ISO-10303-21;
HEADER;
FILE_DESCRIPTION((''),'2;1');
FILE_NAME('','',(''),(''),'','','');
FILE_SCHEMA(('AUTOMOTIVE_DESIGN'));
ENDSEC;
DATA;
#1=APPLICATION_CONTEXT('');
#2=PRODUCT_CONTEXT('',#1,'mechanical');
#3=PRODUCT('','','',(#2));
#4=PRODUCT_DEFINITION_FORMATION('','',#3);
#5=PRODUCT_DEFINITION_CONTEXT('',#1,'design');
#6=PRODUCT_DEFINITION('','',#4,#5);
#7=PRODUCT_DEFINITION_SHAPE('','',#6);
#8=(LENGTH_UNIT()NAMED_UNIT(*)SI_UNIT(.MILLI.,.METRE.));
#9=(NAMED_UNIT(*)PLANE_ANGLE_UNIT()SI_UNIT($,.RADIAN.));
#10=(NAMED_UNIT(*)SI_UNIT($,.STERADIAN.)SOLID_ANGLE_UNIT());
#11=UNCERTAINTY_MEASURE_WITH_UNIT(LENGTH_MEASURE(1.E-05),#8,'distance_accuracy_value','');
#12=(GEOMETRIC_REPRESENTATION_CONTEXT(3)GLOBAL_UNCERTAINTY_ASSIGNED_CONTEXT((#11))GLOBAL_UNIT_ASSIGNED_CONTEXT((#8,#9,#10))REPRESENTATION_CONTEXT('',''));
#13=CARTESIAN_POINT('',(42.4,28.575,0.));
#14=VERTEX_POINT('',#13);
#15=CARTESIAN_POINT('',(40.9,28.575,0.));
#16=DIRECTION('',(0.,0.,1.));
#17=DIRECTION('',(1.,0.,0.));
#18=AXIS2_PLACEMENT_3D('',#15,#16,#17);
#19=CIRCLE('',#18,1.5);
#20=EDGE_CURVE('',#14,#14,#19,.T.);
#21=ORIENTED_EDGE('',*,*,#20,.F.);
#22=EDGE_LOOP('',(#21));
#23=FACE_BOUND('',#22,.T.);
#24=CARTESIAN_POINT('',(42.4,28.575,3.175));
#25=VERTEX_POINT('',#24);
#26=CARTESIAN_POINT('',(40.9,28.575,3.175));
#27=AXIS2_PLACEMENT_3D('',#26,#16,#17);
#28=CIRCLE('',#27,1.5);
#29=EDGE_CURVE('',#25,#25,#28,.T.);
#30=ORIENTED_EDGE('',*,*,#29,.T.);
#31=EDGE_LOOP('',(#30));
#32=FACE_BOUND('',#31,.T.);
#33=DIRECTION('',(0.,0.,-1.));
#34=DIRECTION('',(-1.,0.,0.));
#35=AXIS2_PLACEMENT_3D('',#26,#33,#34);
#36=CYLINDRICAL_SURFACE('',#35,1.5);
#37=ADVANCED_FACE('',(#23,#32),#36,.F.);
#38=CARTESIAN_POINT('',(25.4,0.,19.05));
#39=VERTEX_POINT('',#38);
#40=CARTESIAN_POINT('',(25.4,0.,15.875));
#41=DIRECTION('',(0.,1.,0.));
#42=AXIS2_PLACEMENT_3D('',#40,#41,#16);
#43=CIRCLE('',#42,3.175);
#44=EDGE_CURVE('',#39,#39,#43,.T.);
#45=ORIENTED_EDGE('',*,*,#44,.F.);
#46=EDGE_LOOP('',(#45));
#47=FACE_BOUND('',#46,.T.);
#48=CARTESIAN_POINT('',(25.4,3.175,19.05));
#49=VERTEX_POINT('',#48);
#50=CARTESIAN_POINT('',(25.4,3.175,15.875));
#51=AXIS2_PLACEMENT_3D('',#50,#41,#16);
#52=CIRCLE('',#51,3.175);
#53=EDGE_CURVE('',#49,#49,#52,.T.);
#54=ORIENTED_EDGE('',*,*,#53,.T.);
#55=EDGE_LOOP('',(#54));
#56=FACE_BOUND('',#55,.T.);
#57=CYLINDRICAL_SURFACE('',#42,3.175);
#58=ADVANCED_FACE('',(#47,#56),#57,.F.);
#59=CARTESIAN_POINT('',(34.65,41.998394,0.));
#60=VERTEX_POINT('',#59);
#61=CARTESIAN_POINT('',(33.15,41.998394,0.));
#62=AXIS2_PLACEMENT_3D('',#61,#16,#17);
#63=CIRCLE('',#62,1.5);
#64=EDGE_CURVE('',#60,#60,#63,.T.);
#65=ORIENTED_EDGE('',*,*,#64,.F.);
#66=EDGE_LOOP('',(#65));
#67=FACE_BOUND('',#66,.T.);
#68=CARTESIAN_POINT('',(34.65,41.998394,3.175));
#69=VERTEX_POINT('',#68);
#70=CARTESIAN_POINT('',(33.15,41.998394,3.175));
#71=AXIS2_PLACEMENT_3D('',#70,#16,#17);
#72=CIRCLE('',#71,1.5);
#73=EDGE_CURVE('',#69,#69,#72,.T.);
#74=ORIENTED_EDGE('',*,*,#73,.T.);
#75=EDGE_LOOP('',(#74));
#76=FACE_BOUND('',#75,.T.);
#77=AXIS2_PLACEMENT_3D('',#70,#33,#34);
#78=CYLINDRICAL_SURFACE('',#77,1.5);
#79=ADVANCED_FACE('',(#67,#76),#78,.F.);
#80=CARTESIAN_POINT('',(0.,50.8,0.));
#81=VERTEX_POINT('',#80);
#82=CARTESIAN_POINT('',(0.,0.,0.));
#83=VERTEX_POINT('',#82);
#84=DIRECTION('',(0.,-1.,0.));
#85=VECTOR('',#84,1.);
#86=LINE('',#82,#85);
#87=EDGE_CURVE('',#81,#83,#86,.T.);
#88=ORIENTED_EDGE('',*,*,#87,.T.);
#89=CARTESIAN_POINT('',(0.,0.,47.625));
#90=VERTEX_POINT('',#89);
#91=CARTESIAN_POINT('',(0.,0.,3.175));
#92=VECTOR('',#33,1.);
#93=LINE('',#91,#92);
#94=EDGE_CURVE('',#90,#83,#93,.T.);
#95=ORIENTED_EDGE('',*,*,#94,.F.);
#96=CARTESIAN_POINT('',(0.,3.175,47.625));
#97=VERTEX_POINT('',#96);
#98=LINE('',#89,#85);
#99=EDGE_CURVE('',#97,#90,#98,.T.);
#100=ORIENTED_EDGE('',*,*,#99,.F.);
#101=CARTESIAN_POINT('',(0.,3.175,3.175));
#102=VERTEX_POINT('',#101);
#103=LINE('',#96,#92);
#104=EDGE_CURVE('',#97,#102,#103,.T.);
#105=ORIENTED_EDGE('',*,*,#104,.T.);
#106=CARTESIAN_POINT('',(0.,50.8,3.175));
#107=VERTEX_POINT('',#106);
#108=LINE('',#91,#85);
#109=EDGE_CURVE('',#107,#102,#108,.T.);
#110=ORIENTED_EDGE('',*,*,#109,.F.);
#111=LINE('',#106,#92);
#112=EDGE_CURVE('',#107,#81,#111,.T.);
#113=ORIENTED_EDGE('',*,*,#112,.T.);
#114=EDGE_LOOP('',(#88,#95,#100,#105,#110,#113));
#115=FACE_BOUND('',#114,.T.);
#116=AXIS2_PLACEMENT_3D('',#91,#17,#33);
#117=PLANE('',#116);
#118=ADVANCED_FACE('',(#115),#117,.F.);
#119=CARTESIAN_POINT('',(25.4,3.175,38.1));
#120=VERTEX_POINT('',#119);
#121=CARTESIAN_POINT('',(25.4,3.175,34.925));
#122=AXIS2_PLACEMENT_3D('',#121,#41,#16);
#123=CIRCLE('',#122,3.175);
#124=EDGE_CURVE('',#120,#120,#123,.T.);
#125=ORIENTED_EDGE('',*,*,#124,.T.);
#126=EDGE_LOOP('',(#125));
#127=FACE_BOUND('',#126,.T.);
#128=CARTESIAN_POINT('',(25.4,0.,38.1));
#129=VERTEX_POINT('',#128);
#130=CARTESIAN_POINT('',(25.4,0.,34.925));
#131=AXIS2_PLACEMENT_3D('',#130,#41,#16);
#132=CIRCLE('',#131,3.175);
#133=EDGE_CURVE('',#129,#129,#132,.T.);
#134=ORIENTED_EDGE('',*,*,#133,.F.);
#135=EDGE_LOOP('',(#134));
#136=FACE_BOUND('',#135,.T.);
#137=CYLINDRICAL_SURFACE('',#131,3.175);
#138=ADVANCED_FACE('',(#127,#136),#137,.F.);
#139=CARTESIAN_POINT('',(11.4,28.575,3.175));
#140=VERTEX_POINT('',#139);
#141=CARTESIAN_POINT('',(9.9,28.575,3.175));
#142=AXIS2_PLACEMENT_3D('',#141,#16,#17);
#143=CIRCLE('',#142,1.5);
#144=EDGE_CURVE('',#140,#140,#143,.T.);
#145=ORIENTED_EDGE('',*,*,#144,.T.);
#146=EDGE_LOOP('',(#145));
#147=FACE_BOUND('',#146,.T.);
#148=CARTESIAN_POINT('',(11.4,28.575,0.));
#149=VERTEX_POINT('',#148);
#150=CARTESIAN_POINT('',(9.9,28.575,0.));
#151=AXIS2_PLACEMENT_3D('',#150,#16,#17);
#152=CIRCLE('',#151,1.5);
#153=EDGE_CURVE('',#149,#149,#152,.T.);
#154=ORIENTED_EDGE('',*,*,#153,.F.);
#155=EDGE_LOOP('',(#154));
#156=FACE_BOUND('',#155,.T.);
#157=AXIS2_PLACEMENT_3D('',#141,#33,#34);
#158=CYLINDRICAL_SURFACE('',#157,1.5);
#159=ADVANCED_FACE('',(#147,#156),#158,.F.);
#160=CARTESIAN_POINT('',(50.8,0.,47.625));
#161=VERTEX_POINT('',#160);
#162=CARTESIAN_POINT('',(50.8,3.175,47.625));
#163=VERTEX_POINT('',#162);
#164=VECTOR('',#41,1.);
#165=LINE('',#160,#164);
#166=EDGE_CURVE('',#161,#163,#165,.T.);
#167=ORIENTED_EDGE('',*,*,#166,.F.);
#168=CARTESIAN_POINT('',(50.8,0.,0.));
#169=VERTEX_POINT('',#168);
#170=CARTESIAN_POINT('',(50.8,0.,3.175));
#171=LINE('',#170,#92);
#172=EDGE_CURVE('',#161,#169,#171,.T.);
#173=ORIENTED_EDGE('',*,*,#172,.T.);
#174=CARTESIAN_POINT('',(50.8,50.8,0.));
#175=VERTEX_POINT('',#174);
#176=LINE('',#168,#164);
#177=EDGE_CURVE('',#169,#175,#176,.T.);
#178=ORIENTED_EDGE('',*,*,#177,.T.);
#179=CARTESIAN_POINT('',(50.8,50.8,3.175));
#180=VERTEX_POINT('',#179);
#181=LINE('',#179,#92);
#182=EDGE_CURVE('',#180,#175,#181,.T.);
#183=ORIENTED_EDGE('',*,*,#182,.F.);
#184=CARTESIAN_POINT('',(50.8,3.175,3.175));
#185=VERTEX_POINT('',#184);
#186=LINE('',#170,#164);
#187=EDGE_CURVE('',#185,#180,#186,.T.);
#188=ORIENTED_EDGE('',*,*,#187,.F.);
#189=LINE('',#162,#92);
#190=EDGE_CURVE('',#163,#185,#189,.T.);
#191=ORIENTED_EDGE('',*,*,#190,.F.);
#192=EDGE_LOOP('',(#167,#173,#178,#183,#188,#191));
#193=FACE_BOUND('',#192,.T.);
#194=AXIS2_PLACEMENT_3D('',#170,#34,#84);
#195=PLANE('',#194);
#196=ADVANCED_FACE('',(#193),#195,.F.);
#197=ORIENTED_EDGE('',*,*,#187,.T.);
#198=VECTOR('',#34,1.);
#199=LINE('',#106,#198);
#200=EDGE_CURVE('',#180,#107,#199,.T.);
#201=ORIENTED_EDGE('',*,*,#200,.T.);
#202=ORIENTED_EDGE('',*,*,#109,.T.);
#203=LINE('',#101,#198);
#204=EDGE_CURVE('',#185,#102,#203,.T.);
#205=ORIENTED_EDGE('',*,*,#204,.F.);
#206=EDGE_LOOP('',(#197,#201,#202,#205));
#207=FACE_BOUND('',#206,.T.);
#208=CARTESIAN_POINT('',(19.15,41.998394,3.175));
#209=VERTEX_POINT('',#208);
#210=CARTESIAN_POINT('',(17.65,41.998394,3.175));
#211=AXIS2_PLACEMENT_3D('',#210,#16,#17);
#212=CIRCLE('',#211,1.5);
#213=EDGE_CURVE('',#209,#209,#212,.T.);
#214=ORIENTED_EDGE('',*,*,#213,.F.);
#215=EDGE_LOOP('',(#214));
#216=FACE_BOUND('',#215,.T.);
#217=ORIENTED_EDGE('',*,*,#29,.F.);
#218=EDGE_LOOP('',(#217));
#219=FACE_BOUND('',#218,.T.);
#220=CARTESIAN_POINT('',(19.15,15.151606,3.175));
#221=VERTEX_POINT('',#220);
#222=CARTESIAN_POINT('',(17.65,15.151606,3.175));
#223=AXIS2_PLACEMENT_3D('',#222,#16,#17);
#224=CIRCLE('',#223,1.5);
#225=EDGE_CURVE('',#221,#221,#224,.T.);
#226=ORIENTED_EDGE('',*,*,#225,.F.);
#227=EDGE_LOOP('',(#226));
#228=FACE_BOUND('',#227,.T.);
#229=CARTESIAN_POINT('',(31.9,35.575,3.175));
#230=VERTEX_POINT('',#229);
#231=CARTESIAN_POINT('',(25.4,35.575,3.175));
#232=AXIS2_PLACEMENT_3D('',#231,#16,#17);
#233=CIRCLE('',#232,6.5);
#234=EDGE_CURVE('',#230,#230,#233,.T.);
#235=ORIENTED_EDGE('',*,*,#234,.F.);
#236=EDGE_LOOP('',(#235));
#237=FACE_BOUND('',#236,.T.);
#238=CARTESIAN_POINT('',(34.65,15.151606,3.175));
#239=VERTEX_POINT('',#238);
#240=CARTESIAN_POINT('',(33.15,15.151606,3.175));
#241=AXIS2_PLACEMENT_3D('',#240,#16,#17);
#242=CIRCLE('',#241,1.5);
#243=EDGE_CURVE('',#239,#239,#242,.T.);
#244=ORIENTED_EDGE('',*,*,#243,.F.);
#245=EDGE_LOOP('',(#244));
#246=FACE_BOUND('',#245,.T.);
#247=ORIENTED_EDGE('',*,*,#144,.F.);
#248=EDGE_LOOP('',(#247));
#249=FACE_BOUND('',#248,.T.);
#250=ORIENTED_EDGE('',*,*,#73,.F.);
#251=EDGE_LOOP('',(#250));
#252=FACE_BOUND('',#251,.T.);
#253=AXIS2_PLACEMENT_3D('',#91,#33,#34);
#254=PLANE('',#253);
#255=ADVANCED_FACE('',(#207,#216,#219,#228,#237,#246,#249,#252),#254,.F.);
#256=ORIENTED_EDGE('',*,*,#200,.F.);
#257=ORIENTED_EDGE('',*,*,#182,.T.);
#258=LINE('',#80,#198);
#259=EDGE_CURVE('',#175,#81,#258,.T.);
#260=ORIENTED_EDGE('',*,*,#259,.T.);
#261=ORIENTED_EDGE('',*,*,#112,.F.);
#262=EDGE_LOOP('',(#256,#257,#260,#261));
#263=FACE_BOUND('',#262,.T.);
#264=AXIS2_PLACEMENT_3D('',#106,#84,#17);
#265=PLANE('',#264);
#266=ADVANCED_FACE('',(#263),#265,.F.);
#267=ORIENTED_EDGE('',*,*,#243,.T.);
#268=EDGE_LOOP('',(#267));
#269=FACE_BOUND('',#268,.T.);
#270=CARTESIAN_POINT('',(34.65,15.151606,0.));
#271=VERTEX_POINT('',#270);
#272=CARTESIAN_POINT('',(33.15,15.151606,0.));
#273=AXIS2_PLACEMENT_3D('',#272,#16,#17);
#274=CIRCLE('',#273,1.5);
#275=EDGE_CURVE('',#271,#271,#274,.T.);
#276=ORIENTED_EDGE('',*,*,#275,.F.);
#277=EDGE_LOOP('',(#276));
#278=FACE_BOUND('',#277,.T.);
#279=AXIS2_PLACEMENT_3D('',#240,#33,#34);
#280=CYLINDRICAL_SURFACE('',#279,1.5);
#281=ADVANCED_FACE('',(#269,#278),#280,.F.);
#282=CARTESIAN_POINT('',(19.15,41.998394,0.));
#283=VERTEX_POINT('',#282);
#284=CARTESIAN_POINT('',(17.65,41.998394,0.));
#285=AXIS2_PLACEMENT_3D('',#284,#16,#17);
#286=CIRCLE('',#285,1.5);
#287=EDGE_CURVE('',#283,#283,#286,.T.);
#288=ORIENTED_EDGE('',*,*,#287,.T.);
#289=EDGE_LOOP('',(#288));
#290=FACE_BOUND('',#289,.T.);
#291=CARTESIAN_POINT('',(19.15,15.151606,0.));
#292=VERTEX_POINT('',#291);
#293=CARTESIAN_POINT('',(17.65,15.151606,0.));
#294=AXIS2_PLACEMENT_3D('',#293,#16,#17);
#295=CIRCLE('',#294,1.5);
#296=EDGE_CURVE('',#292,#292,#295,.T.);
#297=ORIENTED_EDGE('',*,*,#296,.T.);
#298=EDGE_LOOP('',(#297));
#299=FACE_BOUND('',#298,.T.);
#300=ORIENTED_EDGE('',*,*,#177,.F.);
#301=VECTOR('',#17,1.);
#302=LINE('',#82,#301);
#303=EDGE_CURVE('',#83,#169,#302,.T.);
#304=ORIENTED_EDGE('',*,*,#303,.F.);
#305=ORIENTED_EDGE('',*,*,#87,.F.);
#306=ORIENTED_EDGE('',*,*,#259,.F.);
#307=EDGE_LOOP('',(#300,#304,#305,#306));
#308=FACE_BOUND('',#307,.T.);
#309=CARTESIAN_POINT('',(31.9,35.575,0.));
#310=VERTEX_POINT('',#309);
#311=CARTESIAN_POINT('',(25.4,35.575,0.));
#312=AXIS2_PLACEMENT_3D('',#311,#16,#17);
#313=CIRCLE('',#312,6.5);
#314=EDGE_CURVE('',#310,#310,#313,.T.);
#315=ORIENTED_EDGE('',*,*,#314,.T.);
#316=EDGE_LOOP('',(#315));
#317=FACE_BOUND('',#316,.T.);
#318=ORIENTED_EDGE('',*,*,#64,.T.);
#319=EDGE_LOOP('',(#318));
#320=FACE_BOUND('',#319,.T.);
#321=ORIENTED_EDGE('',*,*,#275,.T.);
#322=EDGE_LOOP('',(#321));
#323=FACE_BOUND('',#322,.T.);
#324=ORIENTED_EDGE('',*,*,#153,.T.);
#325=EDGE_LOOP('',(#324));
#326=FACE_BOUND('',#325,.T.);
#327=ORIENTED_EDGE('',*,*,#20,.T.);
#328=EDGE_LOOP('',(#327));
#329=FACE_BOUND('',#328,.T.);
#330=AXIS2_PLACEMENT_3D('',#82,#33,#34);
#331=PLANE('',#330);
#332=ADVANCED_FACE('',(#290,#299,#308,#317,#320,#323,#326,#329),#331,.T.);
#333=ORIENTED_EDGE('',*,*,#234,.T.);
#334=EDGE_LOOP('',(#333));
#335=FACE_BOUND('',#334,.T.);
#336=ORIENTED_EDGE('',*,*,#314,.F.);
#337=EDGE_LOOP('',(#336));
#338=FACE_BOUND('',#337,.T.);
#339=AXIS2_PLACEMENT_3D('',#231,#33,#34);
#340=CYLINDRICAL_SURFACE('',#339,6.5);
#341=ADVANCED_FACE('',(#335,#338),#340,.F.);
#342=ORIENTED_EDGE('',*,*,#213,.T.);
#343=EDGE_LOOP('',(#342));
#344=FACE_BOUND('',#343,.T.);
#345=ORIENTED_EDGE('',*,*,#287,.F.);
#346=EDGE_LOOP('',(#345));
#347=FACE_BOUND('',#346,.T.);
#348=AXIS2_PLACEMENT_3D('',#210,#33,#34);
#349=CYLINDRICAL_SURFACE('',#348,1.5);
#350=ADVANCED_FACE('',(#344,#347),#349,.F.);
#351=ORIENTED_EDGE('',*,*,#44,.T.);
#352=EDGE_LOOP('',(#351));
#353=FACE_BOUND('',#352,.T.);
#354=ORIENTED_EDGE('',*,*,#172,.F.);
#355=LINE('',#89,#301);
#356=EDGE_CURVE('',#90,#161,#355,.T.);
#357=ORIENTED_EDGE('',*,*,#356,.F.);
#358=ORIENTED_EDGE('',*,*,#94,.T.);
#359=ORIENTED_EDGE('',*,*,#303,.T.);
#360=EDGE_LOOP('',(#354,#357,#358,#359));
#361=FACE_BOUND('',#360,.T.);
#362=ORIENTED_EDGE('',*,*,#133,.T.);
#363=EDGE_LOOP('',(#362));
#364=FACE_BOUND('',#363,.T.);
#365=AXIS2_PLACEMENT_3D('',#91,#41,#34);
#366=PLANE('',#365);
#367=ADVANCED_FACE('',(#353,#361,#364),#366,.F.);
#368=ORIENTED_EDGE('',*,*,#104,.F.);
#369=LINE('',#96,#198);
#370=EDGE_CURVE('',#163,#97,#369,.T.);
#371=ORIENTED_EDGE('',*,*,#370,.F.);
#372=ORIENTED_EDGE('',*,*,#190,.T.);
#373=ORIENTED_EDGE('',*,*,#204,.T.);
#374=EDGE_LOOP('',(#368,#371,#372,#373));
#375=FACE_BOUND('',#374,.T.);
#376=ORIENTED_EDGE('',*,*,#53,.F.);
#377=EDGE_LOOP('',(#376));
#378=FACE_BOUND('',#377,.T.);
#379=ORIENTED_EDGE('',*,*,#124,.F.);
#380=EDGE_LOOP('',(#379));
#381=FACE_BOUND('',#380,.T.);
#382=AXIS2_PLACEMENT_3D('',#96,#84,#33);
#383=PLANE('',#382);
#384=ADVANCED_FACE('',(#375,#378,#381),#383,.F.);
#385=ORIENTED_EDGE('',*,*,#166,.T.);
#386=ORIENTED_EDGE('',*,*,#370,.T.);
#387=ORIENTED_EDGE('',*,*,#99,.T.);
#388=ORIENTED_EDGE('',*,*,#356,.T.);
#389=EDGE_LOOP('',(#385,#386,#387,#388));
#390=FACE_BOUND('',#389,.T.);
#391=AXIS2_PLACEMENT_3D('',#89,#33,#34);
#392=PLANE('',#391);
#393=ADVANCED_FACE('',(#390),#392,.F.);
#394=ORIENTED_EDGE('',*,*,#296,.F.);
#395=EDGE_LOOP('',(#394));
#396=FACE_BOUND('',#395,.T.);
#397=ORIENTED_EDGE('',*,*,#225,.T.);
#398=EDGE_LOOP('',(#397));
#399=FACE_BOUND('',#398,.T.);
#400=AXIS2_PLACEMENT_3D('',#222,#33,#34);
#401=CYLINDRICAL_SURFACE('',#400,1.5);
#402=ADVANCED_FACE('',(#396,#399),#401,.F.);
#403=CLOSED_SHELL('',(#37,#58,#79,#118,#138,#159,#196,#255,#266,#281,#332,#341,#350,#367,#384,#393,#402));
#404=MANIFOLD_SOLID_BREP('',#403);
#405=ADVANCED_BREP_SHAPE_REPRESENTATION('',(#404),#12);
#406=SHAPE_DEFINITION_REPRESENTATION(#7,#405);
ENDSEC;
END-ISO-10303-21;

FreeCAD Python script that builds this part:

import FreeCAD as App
import Part
import Sketcher
from FreeCAD import Vector
Q = App.Units.Quantity


def add_polygon(sketch, points):
    """Adds a closed chain of lines whose ends are joined by coincident constraints."""
    first, n = sketch.GeometryCount, len(points)
    for a, b in zip(points, points[1:] + points[:1]):
        sketch.addGeometry(Part.LineSegment(App.Vector(*a, 0), App.Vector(*b, 0)), False)
    for i in range(n):
        sketch.addConstraint(Sketcher.Constraint("Coincident", first + i, 2, first + (i + 1) % n, 1))

doc = App.newDocument("Part")
params = doc.addObject("Spreadsheet::Sheet", "Params")
for row, (alias, value) in enumerate([
    ("sketch1_width", "2 in"),
    ("pad1_length", "0.125 in"),
    ("sketch2_width", "2 in"),
    ("sketch2_height", "0.125 in"),
    ("pad2_length", "1.75 in"),
    ("sketch3_diameter", "0.25 in"),
], start=1):
    params.set(f"A{row}", alias)
    params.set(f"B{row}", "=" + value)
    params.setAlias(f"B{row}", alias)

body = doc.addObject("PartDesign::Body", "Body")

# Sketch on XY plane
sketch1 = body.newObject("Sketcher::SketchObject", "Sketch")
sketch1.AttachmentSupport = (doc.getObject("XY_Plane"), [""])
sketch1.MapMode = "FlatFace"
add_polygon(sketch1, [(0, 50.8), (0, 0), (50.8, 0), (50.8, 50.8)])  # lines 0-3
sketch1.addGeometry(Part.Circle(Vector(17.6, 15.2, 0), Vector(0, 0, 1), 1.5), False)  # 4
sketch1.addGeometry(Part.Circle(Vector(9.9, 28.6, 0), Vector(0, 0, 1), 1.5), False)  # 5
sketch1.addGeometry(Part.Circle(Vector(33.1, 15.2, 0), Vector(0, 0, 1), 1.5), False)  # 6
sketch1.addGeometry(Part.Circle(Vector(40.9, 28.6, 0), Vector(0, 0, 1), 1.5), False)  # 7
sketch1.addGeometry(Part.Circle(Vector(17.6, 42, 0), Vector(0, 0, 1), 1.5), False)  # 8
sketch1.addGeometry(Part.Circle(Vector(25.4, 35.6, 0), Vector(0, 0, 1), 6.5), False)  # 9
sketch1.addGeometry(Part.Circle(Vector(33.1, 42, 0), Vector(0, 0, 1), 1.5), False)  # 10
sketch1.addConstraint([
    Sketcher.Constraint("Vertical", 0),
    Sketcher.Constraint("Horizontal", 1),
    Sketcher.Constraint("Vertical", 2),
    Sketcher.Constraint("Horizontal", 3),
    Sketcher.Constraint("Coincident", 0, 2, -1, 1),
    Sketcher.Constraint("Equal", 4, 5),
    Sketcher.Constraint("Equal", 5, 6),
    Sketcher.Constraint("Equal", 6, 7),
    Sketcher.Constraint("Equal", 7, 8),
    Sketcher.Constraint("Equal", 8, 10),
    Sketcher.Constraint("Horizontal", 4, 3, 6, 3),
    Sketcher.Constraint("Horizontal", 5, 3, 7, 3),
    Sketcher.Constraint("Horizontal", 8, 3, 10, 3),
    Sketcher.Constraint("Vertical", 4, 3, 8, 3),
    Sketcher.Constraint("Vertical", 6, 3, 10, 3),
    Sketcher.Constraint("Equal", 3, 0),
    Sketcher.Constraint("DistanceX", 1, 1, 1, 2, Q("2 in")),
    Sketcher.Constraint("DistanceX", -1, 1, 9, 3, Q("1 in")),
    Sketcher.Constraint("Diameter", 4, 3.0),
    Sketcher.Constraint("Diameter", 9, 13.0),
    Sketcher.Constraint("DistanceY", -1, 1, 5, 3, Q("1.125 in")),
    Sketcher.Constraint("DistanceX", -1, 1, 4, 3, 17.65),
    Sketcher.Constraint("DistanceX", -1, 1, 5, 3, 9.9),
    Sketcher.Constraint("DistanceX", -1, 1, 6, 3, 33.15),
    Sketcher.Constraint("DistanceX", -1, 1, 7, 3, 40.9),
    Sketcher.Constraint("DistanceY", -1, 1, 9, 3, 35.575),
    Sketcher.Constraint("DistanceY", -1, 1, 4, 3, 15.151606),
    Sketcher.Constraint("DistanceY", -1, 1, 8, 3, 41.998394),
])
sketch1.setExpression("Constraints[20]", "Params.sketch1_width")
pad1 = body.newObject("PartDesign::Pad", "Pad")
pad1.Profile = sketch1
pad1.setExpression("Length", "Params.pad1_length")

# Sketch on XY plane
sketch2 = body.newObject("Sketcher::SketchObject", "Sketch001")
sketch2.AttachmentSupport = (doc.getObject("XY_Plane"), [""])
sketch2.MapMode = "FlatFace"
sketch2.AttachmentOffset = App.Placement(Vector(0, 0, 0.125 * 25.4), App.Rotation())
add_polygon(sketch2, [(0, 3.2), (0, 0), (50.8, 0), (50.8, 3.2)])  # lines 0-3
sketch2.addConstraint([
    Sketcher.Constraint("Vertical", 0),
    Sketcher.Constraint("Horizontal", 1),
    Sketcher.Constraint("Vertical", 2),
    Sketcher.Constraint("Horizontal", 3),
    Sketcher.Constraint("Coincident", 0, 2, -1, 1),
    Sketcher.Constraint("DistanceX", 1, 1, 1, 2, Q("2 in")),
    Sketcher.Constraint("DistanceY", 0, 2, 0, 1, Q("0.125 in")),
])
sketch2.setExpression("Constraints[9]", "Params.sketch2_width")
sketch2.setExpression("Constraints[10]", "Params.sketch2_height")
pad2 = body.newObject("PartDesign::Pad", "Pad001")
pad2.Profile = sketch2
pad2.setExpression("Length", "Params.pad2_length")

# Sketch on XZ plane
sketch3 = body.newObject("Sketcher::SketchObject", "Sketch002")
sketch3.AttachmentSupport = (doc.getObject("XZ_Plane"), [""])
sketch3.MapMode = "FlatFace"
sketch3.AttachmentOffset = App.Placement(Vector(0, 0, -0.125 * 25.4), App.Rotation())
sketch3.addGeometry([
    Part.Circle(Vector(25.4, 15.9, 0), Vector(0, 0, 1), 3.2),
    Part.Circle(Vector(25.4, 34.9, 0), Vector(0, 0, 1), 3.2),
], False)
sketch3.addConstraint([
    Sketcher.Constraint("Equal", 0, 1),
    Sketcher.Constraint("Vertical", 0, 3, 1, 3),
    Sketcher.Constraint("Diameter", 0, Q("0.25 in")),
    Sketcher.Constraint("DistanceX", -1, 1, 0, 3, Q("1 in")),
    Sketcher.Constraint("DistanceY", 0, 3, 1, 3, Q("0.75 in")),
    Sketcher.Constraint("DistanceY", -1, 1, 0, 3, Q("0.625 in")),
])
sketch3.setExpression("Constraints[2]", "Params.sketch3_diameter")
pocket1 = body.newObject("PartDesign::Pocket", "Pocket")
pocket1.Profile = sketch3
pocket1.Type = "ThroughAll"
pocket1.Reversed = True

doc.recompute()
